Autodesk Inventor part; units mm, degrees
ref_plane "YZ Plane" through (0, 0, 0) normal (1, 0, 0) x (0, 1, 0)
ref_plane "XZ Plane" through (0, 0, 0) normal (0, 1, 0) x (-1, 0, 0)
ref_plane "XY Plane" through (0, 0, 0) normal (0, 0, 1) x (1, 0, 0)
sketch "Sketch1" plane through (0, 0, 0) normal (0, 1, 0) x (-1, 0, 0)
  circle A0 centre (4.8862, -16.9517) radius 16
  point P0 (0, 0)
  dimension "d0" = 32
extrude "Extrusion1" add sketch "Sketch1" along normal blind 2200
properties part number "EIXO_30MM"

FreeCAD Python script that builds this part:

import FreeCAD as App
import Part
import Sketcher

V = App.Vector
Q = App.Units.Quantity

doc = App.newDocument("Part")
body = doc.addObject("PartDesign::Body", "Body")

# Sketch on XZ plane
sketch1 = doc.addObject("Sketcher::SketchObject", "Sketch")
body.addObject(sketch1)
sketch1.AttachmentSupport = (doc.XZ_Plane, [""])
sketch1.MapMode = "FlatFace"
sketch1.addGeometry(Part.Circle(V(-5, -17, 0), V(0, 0, 1), 16), False)
sketch1.addConstraint([
    Sketcher.Constraint("Diameter", 0, Q("32 mm")),
    Sketcher.Constraint("DistanceX", 0, 3, -1, 1, Q("4.8862 mm")),
    Sketcher.Constraint("DistanceY", 0, 3, -1, 1, Q("16.9517 mm")),
])
pad1 = doc.addObject("PartDesign::Pad", "Pad")
body.addObject(pad1)
pad1.Profile = sketch1
pad1.Length = 2200
pad1.Reversed = True

doc.recompute()
